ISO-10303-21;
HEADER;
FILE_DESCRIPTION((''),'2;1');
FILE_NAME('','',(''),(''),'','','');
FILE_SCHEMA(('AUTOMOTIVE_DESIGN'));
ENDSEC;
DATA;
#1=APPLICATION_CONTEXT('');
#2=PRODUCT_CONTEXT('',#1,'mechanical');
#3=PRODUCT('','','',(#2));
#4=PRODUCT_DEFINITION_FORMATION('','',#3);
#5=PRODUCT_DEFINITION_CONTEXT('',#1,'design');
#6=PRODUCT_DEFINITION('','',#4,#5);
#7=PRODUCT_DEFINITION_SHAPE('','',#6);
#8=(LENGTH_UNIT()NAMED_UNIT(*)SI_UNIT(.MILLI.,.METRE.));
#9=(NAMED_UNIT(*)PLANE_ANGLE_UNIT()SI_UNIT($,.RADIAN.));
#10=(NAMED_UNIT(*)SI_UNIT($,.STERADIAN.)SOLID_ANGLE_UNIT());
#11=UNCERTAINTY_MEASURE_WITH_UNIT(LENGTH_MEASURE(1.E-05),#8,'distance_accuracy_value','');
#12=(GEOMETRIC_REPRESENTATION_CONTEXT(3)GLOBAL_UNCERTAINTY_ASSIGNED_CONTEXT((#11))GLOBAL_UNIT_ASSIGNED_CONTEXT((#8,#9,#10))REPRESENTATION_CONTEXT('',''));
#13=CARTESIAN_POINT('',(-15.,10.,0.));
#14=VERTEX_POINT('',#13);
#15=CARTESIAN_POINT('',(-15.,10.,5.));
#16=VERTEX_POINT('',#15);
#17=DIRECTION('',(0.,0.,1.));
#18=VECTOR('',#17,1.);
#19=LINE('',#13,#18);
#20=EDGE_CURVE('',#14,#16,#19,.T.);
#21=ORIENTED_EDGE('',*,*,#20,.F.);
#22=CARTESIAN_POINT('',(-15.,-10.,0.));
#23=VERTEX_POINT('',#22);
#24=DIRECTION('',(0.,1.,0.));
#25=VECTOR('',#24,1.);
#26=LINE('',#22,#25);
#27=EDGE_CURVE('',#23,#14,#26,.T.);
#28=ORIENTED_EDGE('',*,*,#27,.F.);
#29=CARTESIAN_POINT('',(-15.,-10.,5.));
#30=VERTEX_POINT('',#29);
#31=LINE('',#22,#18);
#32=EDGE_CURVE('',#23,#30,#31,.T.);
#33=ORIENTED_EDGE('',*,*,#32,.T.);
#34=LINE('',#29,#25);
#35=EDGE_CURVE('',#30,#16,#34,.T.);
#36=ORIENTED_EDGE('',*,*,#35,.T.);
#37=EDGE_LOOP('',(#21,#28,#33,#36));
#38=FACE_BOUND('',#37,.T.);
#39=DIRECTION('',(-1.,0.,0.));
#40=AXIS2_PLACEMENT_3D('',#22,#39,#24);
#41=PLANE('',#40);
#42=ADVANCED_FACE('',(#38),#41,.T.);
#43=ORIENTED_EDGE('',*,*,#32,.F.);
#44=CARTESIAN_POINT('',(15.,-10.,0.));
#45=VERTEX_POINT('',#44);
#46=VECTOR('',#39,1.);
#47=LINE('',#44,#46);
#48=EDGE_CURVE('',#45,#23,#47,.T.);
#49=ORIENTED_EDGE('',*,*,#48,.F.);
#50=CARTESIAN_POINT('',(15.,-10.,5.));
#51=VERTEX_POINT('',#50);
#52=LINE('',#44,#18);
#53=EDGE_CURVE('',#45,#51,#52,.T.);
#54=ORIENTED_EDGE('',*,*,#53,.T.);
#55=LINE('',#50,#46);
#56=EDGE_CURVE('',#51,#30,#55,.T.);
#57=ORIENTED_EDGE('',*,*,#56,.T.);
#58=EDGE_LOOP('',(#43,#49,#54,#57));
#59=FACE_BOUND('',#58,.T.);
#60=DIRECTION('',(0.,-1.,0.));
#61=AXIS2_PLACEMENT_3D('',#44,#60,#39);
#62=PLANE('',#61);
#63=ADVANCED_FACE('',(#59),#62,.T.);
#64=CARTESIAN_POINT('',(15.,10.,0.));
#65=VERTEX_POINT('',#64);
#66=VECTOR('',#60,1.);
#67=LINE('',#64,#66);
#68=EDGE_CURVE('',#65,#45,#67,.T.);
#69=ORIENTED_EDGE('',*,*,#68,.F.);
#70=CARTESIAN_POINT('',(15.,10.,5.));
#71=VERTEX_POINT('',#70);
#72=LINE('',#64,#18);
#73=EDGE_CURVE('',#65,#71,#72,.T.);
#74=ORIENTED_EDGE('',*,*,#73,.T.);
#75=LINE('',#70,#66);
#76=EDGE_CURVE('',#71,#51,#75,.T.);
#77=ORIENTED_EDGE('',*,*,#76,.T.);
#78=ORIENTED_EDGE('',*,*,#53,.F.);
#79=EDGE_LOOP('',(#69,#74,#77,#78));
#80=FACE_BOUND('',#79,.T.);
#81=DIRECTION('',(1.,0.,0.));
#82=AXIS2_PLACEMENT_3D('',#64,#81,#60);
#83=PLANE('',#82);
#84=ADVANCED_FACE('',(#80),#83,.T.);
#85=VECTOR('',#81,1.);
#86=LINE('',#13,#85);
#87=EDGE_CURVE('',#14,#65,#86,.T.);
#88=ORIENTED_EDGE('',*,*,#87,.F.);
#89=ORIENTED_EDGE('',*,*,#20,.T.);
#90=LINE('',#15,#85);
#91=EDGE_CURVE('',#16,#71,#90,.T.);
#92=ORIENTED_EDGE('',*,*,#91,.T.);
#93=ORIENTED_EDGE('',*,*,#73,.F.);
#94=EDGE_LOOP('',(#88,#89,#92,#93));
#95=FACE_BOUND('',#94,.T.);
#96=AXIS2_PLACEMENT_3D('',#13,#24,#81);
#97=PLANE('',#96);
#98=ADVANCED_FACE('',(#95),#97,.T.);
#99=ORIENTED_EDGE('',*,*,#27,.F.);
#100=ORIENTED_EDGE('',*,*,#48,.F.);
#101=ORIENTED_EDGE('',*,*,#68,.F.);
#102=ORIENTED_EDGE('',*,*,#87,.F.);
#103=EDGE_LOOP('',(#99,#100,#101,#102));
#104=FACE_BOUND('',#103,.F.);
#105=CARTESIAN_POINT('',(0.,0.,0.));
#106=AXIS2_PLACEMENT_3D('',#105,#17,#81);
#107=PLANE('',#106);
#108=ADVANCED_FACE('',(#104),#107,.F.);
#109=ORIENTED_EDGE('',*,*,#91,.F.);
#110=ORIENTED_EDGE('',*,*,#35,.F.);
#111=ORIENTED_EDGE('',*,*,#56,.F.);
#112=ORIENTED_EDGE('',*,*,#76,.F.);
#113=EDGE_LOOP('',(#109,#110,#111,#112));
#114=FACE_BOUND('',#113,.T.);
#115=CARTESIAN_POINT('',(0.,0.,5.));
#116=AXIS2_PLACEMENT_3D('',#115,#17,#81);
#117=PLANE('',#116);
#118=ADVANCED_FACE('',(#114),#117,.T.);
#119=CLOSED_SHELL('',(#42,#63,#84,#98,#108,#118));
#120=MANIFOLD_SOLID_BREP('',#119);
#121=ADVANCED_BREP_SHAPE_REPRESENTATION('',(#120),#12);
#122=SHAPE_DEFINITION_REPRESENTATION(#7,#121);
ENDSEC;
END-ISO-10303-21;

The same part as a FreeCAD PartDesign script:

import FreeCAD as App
import Part
import Sketcher
from FreeCAD import Vector


def add_polygon(sketch, points):
    """Adds a closed chain of lines whose ends are joined by coincident constraints."""
    first, n = sketch.GeometryCount, len(points)
    for a, b in zip(points, points[1:] + points[:1]):
        sketch.addGeometry(Part.LineSegment(App.Vector(*a, 0), App.Vector(*b, 0)), False)
    for i in range(n):
        sketch.addConstraint(Sketcher.Constraint("Coincident", first + i, 2, first + (i + 1) % n, 1))

doc = App.newDocument("Part")
body = doc.addObject("PartDesign::Body", "Body")

sketch1 = doc.addObject("Sketcher::SketchObject", "Sketch")
body.addObject(sketch1)
sketch1.AttachmentSupport = (doc.XY_Plane, [""])
sketch1.MapMode = "FlatFace"
add_polygon(sketch1, [(-15, 10), (-15, -10), (15, -10), (15, 10)])
sketch1.addConstraint(Sketcher.Constraint("Vertical", 0))
sketch1.addConstraint(Sketcher.Constraint("Horizontal", 1))
sketch1.addConstraint(Sketcher.Constraint("Vertical", 2))
sketch1.addConstraint(Sketcher.Constraint("Horizontal", 3))
sketch1.addConstraint(Sketcher.Constraint("Symmetric", 0, 2, 2, 2, -1, 1))
sketch1.addConstraint(Sketcher.Constraint("DistanceX", 1, 1, 1, 2, 30.0))
sketch1.addConstraint(Sketcher.Constraint("DistanceY", 0, 2, 0, 1, 20.0))
pad1 = doc.addObject("PartDesign::Pad", "Pad")
body.addObject(pad1)
pad1.Profile = sketch1
pad1.Length = 5

doc.recompute()
